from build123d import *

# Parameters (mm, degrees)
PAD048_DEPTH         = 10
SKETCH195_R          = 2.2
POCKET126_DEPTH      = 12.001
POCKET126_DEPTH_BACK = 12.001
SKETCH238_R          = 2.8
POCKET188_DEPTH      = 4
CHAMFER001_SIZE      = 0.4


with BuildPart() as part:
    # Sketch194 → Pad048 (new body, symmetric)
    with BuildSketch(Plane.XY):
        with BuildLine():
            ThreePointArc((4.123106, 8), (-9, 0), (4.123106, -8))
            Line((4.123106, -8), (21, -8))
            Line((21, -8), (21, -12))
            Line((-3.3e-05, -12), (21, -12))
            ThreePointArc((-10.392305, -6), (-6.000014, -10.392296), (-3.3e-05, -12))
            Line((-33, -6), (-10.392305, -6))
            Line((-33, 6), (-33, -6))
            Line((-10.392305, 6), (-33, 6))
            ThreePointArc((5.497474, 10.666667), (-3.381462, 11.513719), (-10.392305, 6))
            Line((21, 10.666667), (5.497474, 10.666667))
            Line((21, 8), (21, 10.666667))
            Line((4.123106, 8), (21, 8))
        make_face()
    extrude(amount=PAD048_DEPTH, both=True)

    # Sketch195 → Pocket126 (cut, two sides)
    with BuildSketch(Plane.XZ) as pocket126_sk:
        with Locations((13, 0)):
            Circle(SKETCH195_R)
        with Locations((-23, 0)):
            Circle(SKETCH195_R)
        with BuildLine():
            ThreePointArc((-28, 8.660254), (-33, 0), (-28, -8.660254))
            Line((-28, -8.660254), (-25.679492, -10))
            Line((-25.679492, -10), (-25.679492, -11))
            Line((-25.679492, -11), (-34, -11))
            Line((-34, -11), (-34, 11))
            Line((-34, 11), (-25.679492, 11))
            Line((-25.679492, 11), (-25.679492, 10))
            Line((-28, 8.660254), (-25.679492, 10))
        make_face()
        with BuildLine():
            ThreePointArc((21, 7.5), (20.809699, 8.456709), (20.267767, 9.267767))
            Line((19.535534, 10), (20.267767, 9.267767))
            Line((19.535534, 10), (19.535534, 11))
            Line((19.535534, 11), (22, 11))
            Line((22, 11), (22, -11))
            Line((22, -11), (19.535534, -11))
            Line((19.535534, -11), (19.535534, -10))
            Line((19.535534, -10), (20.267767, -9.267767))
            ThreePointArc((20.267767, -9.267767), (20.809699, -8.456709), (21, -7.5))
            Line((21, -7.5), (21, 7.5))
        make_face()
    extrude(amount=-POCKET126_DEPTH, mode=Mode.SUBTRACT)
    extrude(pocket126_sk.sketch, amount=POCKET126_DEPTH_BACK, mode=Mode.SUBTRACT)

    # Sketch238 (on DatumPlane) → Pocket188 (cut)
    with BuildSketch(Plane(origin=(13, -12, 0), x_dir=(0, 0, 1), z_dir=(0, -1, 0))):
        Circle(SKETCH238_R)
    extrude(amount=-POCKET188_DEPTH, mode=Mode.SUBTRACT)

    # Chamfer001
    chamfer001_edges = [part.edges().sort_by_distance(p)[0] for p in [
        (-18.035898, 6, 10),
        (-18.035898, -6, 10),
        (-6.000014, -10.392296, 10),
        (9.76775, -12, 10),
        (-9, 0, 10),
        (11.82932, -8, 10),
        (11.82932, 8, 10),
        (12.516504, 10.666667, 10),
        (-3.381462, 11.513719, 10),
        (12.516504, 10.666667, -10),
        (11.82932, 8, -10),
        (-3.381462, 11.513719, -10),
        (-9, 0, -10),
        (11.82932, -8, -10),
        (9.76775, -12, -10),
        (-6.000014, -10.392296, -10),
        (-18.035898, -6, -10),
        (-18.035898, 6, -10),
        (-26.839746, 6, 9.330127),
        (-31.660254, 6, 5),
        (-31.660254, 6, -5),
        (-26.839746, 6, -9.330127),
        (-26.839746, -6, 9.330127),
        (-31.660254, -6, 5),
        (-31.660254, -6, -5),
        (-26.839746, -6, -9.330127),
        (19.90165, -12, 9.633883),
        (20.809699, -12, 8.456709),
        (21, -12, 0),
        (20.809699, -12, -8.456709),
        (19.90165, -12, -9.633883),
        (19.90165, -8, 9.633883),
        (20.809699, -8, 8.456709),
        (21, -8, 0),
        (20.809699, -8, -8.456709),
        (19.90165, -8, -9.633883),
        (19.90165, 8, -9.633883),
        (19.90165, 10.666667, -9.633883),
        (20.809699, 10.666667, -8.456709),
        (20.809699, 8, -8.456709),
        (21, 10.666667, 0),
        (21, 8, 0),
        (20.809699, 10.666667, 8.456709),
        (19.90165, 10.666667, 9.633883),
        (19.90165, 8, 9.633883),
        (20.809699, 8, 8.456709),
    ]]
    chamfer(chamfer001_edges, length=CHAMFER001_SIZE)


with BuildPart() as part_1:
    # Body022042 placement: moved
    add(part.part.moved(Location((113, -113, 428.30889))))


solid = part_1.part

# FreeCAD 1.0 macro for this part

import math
import FreeCAD as App
import Part
import Sketcher

V = App.Vector
Q = App.Units.Quantity


def edges_at(feature, points):
    """Names of the edges that pass closest to the given points."""
    edges = feature.Shape.Edges
    near = lambda p: min(range(len(edges)), key=lambda i: edges[i].distToShape(Part.Vertex(*p))[0])
    return sorted({f"Edge{near(p) + 1}" for p in points})

doc = App.newDocument("Part")
body = doc.addObject("PartDesign::Body", "Body")

sketch1 = body.newObject("Sketcher::SketchObject", "Sketch")
sketch1.AttachmentSupport = (doc.getObject("XY_Plane"), [""])
sketch1.MapMode = "FlatFace"
sketch1.addGeometry(Part.ArcOfCircle(Part.Circle(V(0, 0, 0), V(0, 0, 1), 9), math.radians(62.733954), math.radians(297.266046)), False)
sketch1.addGeometry(Part.LineSegment(V(4.123106, 8, 0), V(21, 8, 0)), False)
sketch1.addGeometry(Part.LineSegment(V(21, 8, 0), V(21, 10.666667, 0)), False)
sketch1.addGeometry(Part.LineSegment(V(21, 10.666667, 0), V(5.497474, 10.666667, 0)), False)
sketch1.addGeometry(Part.ArcOfCircle(Part.Circle(V(0, 0.000001, 0), V(0, 0, 1), 11.999999), math.radians(62.733954), math.radians(150.000004)), False)
sketch1.addGeometry(Part.LineSegment(V(-10.392305, 6, 0), V(-33, 6, 0)), False)
sketch1.addGeometry(Part.LineSegment(V(-33, 6, 0), V(-33, -6, 0)), False)
sketch1.addGeometry(Part.LineSegment(V(-33, -6, 0), V(-10.392305, -6, 0)), False)
sketch1.addGeometry(Part.ArcOfCircle(Part.Circle(V(0.000003, 0.000005, 0), V(0, 0, 1), 12.000005), math.radians(-149.999987), math.radians(-90.00017)), False)
sketch1.addGeometry(Part.LineSegment(V(-0.000033, -12, 0), V(21, -12, 0)), False)
sketch1.addGeometry(Part.LineSegment(V(21, -12, 0), V(21, -8, 0)), False)
sketch1.addGeometry(Part.LineSegment(V(21, -8, 0), V(4.123106, -8, 0)), False)
sketch1.addConstraint(Sketcher.Constraint("Coincident", 0, 1, 1, 1))
sketch1.addConstraint(Sketcher.Constraint("Coincident", 1, 2, 2, 1))
sketch1.addConstraint(Sketcher.Constraint("Coincident", 2, 2, 3, 1))
sketch1.addConstraint(Sketcher.Constraint("Coincident", 3, 2, 4, 1))
sketch1.addConstraint(Sketcher.Constraint("Coincident", 4, 2, 5, 1))
sketch1.addConstraint(Sketcher.Constraint("Coincident", 5, 2, 6, 1))
sketch1.addConstraint(Sketcher.Constraint("Coincident", 6, 2, 7, 1))
sketch1.addConstraint(Sketcher.Constraint("Coincident", 7, 2, 8, 1))
sketch1.addConstraint(Sketcher.Constraint("Coincident", 8, 2, 9, 1))
sketch1.addConstraint(Sketcher.Constraint("Coincident", 9, 2, 10, 1))
sketch1.addConstraint(Sketcher.Constraint("Coincident", 10, 2, 11, 1))
sketch1.addConstraint(Sketcher.Constraint("Coincident", 11, 2, 0, 2))
sketch1.addConstraint(Sketcher.Constraint("Horizontal", 1))
sketch1.addConstraint(Sketcher.Constraint("Vertical", 2))
sketch1.addConstraint(Sketcher.Constraint("Horizontal", 3))
sketch1.addConstraint(Sketcher.Constraint("Horizontal", 5))
sketch1.addConstraint(Sketcher.Constraint("Vertical", 6))
sketch1.addConstraint(Sketcher.Constraint("Horizontal", 7))
sketch1.addConstraint(Sketcher.Constraint("Horizontal", 9))
sketch1.addConstraint(Sketcher.Constraint("Vertical", 10))
sketch1.addConstraint(Sketcher.Constraint("Horizontal", 11))
sketch1.addConstraint(Sketcher.Constraint("Coincident", 0, 3, -1, 1))
sketch1.addConstraint(Sketcher.Constraint("Coincident", 4, 3, -1, 1))
sketch1.addConstraint(Sketcher.Constraint("Coincident", 8, 3, -1, 1))
sketch1.addConstraint(Sketcher.Constraint("Symmetric", 4, 2, 7, 2, -1))
sketch1.addConstraint(Sketcher.Constraint("Symmetric", 1, 2, 10, 2, -1))
sketch1.addConstraint(Sketcher.Constraint("Radius", 0, 9.0))
sketch1.addConstraint(Sketcher.Constraint("Radius", 4, 11.999999))
sketch1.addConstraint(Sketcher.Constraint("DistanceY", 6, 2, 6, 1, 12.0))
sketch1.addConstraint(Sketcher.Constraint("DistanceY", 10, 1, 10, 2, 4.0))
sketch1.addConstraint(Sketcher.Constraint("DistanceX", -1, 1, 1, 2, 21.0))
sketch1.addConstraint(Sketcher.Constraint("DistanceX", 5, 2, -1, 1, 33.0))
sketch1.addConstraint(Sketcher.Constraint("DistanceX", 3, 2, 3, 1, 15.502526))
sketch1.addConstraint(Sketcher.Constraint("DistanceX", 9, 1, 9, 2, 21.000033))
pad1 = body.newObject("PartDesign::Pad", "Pad")
pad1.Profile = sketch1
pad1.Length = 20
pad1.Midplane = True

sketch2 = body.newObject("Sketcher::SketchObject", "Sketch001")
sketch2.AttachmentSupport = (doc.getObject("XZ_Plane"), [""])
sketch2.MapMode = "FlatFace"
sketch2.addGeometry(Part.Circle(V(13, 0, 0), V(0, 0, 1), 2.2), False)
sketch2.addGeometry(Part.Circle(V(-23, 0, 0), V(0, 0, 1), 2.2), False)
sketch2.addGeometry(Part.ArcOfCircle(Part.Circle(V(-23, 0, 0), V(0, 0, 1), 10), math.radians(120), math.radians(240)), False)
sketch2.addGeometry(Part.LineSegment(V(-28, 8.660254, 0), V(-25.679492, 10, 0)), False)
sketch2.addGeometry(Part.LineSegment(V(-25.679492, 10, 0), V(-25.679492, 11, 0)), False)
sketch2.addGeometry(Part.LineSegment(V(-25.679492, 11, 0), V(-34, 11, 0)), False)
sketch2.addGeometry(Part.LineSegment(V(-34, 11, 0), V(-34, -11, 0)), False)
sketch2.addGeometry(Part.LineSegment(V(-34, -11, 0), V(-25.679492, -11, 0)), False)
sketch2.addGeometry(Part.LineSegment(V(-25.679492, -11, 0), V(-25.679492, -10, 0)), False)
sketch2.addGeometry(Part.LineSegment(V(-25.679492, -10, 0), V(-28, -8.660254, 0)), False)
sketch2.addGeometry(Part.ArcOfCircle(Part.Circle(V(18.500003, 7.500002, 0), V(0, 0, 1), 2.499997), math.radians(-0.000034), math.radians(45.000031)), False)
sketch2.addGeometry(Part.LineSegment(V(21, 7.5, 0), V(21, -7.5, 0)), False)
sketch2.addGeometry(Part.ArcOfCircle(Part.Circle(V(18.500003, -7.500002, 0), V(0, 0, 1), 2.499997), math.radians(-45.000031), math.radians(0.000034)), False)
sketch2.addGeometry(Part.LineSegment(V(20.267767, -9.267767, 0), V(19.535534, -10, 0)), False)
sketch2.addGeometry(Part.LineSegment(V(19.535534, -10, 0), V(19.535534, -11, 0)), False)
sketch2.addGeometry(Part.LineSegment(V(19.535534, -11, 0), V(22, -11, 0)), False)
sketch2.addGeometry(Part.LineSegment(V(22, -11, 0), V(22, 11, 0)), False)
sketch2.addGeometry(Part.LineSegment(V(22, 11, 0), V(19.535534, 11, 0)), False)
sketch2.addGeometry(Part.LineSegment(V(19.535534, 11, 0), V(19.535534, 10, 0)), False)
sketch2.addGeometry(Part.LineSegment(V(19.535534, 10, 0), V(20.267767, 9.267767, 0)), False)
sketch2.addConstraint(Sketcher.Constraint("Tangent", 2, 1, 3, 1))
sketch2.addConstraint(Sketcher.Constraint("Coincident", 3, 2, 4, 1))
sketch2.addConstraint(Sketcher.Constraint("Coincident", 4, 2, 5, 1))
sketch2.addConstraint(Sketcher.Constraint("Coincident", 5, 2, 6, 1))
sketch2.addConstraint(Sketcher.Constraint("Coincident", 6, 2, 7, 1))
sketch2.addConstraint(Sketcher.Constraint("Coincident", 7, 2, 8, 1))
sketch2.addConstraint(Sketcher.Constraint("Coincident", 8, 2, 9, 1))
sketch2.addConstraint(Sketcher.Constraint("Tangent", 9, 2, 2, 2))
sketch2.addConstraint(Sketcher.Constraint("Tangent", 10, 1, 11, 1))
sketch2.addConstraint(Sketcher.Constraint("Tangent", 11, 2, 12, 2))
sketch2.addConstraint(Sketcher.Constraint("Tangent", 12, 1, 13, 1))
sketch2.addConstraint(Sketcher.Constraint("Coincident", 13, 2, 14, 1))
sketch2.addConstraint(Sketcher.Constraint("Coincident", 14, 2, 15, 1))
sketch2.addConstraint(Sketcher.Constraint("Coincident", 15, 2, 16, 1))
sketch2.addConstraint(Sketcher.Constraint("Coincident", 16, 2, 17, 1))
sketch2.addConstraint(Sketcher.Constraint("Coincident", 17, 2, 18, 1))
sketch2.addConstraint(Sketcher.Constraint("Coincident", 18, 2, 19, 1))
sketch2.addConstraint(Sketcher.Constraint("Tangent", 19, 2, 10, 2))
sketch2.addConstraint(Sketcher.Constraint("Vertical", 4))
sketch2.addConstraint(Sketcher.Constraint("Horizontal", 5))
sketch2.addConstraint(Sketcher.Constraint("Vertical", 6))
sketch2.addConstraint(Sketcher.Constraint("Horizontal", 7))
sketch2.addConstraint(Sketcher.Constraint("Vertical", 8))
sketch2.addConstraint(Sketcher.Constraint("Vertical", 11))
sketch2.addConstraint(Sketcher.Constraint("Vertical", 14))
sketch2.addConstraint(Sketcher.Constraint("Horizontal", 15))
sketch2.addConstraint(Sketcher.Constraint("Vertical", 16))
sketch2.addConstraint(Sketcher.Constraint("Horizontal", 17))
sketch2.addConstraint(Sketcher.Constraint("Vertical", 18))
sketch2.addConstraint(Sketcher.Constraint("Coincident", 2, 3, 1, 3))
sketch2.addConstraint(Sketcher.Constraint("Equal", 0, 1))
sketch2.addConstraint(Sketcher.Constraint("Equal", 10, 12))
sketch2.addConstraint(Sketcher.Constraint("Symmetric", 4, 2, 7, 2, -1))
sketch2.addConstraint(Sketcher.Constraint("Symmetric", 2, 1, 9, 2, -1))
sketch2.addConstraint(Sketcher.Constraint("Symmetric", 14, 2, 17, 2, -1))
sketch2.addConstraint(Sketcher.Constraint("Symmetric", 12, 1, 19, 2, -1))
sketch2.addConstraint(Sketcher.Constraint("PointOnObject", 0, 3, -1))
sketch2.addConstraint(Sketcher.Constraint("Perpendicular", 13, 19))
sketch2.addConstraint(Sketcher.Constraint("Horizontal", 8, 2, 13, 2))
sketch2.addConstraint(Sketcher.Constraint("Horizontal", 7, 2, 14, 2))
sketch2.addConstraint(Sketcher.Constraint("Radius", 2, 10.0))
sketch2.addConstraint(Sketcher.Constraint("Diameter", 0, 4.4))
sketch2.addConstraint(Sketcher.Constraint("DistanceY", 4, 1, 4, 2, 1.0))
sketch2.addConstraint(Sketcher.Constraint("DistanceY", 6, 2, 6, 1, 22.0))
sketch2.addConstraint(Sketcher.Constraint("DistanceY", 11, 2, 11, 1, 15.0))
sketch2.addConstraint(Sketcher.Constraint("Angle", 3, Q("30.000002 deg")))
sketch2.addConstraint(Sketcher.Constraint("DistanceX", -1, 1, 0, 3, 13.0))
sketch2.addConstraint(Sketcher.Constraint("DistanceX", 1, 3, -1, 1, 23.0))
sketch2.addConstraint(Sketcher.Constraint("DistanceX", 5, 2, -1, 1, 34.0))
sketch2.addConstraint(Sketcher.Constraint("DistanceX", -1, 1, 10, 1, 21.0))
sketch2.addConstraint(Sketcher.Constraint("DistanceX", -1, 1, 15, 2, 22.0))
sketch2.addConstraint(Sketcher.Constraint("Radius", 10, 2.499997))
pocket1 = body.newObject("PartDesign::Pocket", "Pocket")
pocket1.Profile = sketch2
pocket1.Type = "ThroughAll"
pocket1.Midplane = True

sketch3 = body.newObject("Sketcher::SketchObject", "Sketch002")
sketch3.AttachmentSupport = (doc.getObject("XZ_Plane"), [""])
sketch3.MapMode = "FlatFace"
sketch3.AttachmentOffset = App.Placement(V(0, 0, 12), App.Rotation())
sketch3.addGeometry(Part.Circle(V(13, 0, 0), V(0, 0, 1), 2.8), False)
sketch3.addConstraint(Sketcher.Constraint("PointOnObject", 0, 3, -1))
sketch3.addConstraint(Sketcher.Constraint("Diameter", 0, 5.6))
sketch3.addConstraint(Sketcher.Constraint("DistanceX", -1, 1, 0, 3, 13.0))
pocket2 = body.newObject("PartDesign::Pocket", "Pocket001")
pocket2.Profile = sketch3
pocket2.Length = 4
doc.recompute()

chamfer = body.newObject("PartDesign::Chamfer", "Chamfer")
chamfer.Base = (pocket2, edges_at(pocket2, [
    (-18.036, 6, 10),
    (-18.036, -6, 10),
    (-6, -10.392, 10),
    (9.768, -12, 10),
    (-9, 0, 10),
    (11.829, -8, 10),
    (11.829, 8, 10),
    (12.517, 10.667, 10),
    (-3.381, 11.514, 10),
    (12.517, 10.667, -10),
    (11.829, 8, -10),
    (-3.381, 11.514, -10),
    (-9, 0, -10),
    (11.829, -8, -10),
    (9.768, -12, -10),
    (-6, -10.392, -10),
    (-18.036, -6, -10),
    (-18.036, 6, -10),
    (-26.84, 6, 9.33),
    (-33, 6, 0),
    (-33, 6, 0),
    (-26.84, 6, -9.33),
    (-26.84, -6, 9.33),
    (-33, -6, 0),
    (-33, -6, 0),
    (-26.84, -6, -9.33),
    (19.902, -12, 9.634),
    (20.81, -12, 8.457),
    (21, -12, 0),
    (20.81, -12, -8.457),
    (19.902, -12, -9.634),
    (19.902, -8, 9.634),
    (20.81, -8, 8.457),
    (21, -8, 0),
    (20.81, -8, -8.457),
    (19.902, -8, -9.634),
    (19.902, 8, -9.634),
    (19.902, 10.667, -9.634),
    (20.81, 10.667, -8.457),
    (20.81, 8, -8.457),
    (21, 10.667, 0),
    (21, 8, 0),
    (20.81, 10.667, 8.457),
    (19.902, 10.667, 9.634),
    (19.902, 8, 9.634),
    (20.81, 8, 8.457),
]))
chamfer.Size = 0.4
body2 = doc.addObject("PartDesign::Body", "Body001")
doc.recompute()

body.Placement = App.Placement(V(113, -113, 428.30889), App.Rotation(V(0, 0, 1), 0))
boolean = body2.newObject("PartDesign::Boolean", "Boolean")
boolean.Type = "Fuse"
boolean.addObjects([body])

doc.recompute()
